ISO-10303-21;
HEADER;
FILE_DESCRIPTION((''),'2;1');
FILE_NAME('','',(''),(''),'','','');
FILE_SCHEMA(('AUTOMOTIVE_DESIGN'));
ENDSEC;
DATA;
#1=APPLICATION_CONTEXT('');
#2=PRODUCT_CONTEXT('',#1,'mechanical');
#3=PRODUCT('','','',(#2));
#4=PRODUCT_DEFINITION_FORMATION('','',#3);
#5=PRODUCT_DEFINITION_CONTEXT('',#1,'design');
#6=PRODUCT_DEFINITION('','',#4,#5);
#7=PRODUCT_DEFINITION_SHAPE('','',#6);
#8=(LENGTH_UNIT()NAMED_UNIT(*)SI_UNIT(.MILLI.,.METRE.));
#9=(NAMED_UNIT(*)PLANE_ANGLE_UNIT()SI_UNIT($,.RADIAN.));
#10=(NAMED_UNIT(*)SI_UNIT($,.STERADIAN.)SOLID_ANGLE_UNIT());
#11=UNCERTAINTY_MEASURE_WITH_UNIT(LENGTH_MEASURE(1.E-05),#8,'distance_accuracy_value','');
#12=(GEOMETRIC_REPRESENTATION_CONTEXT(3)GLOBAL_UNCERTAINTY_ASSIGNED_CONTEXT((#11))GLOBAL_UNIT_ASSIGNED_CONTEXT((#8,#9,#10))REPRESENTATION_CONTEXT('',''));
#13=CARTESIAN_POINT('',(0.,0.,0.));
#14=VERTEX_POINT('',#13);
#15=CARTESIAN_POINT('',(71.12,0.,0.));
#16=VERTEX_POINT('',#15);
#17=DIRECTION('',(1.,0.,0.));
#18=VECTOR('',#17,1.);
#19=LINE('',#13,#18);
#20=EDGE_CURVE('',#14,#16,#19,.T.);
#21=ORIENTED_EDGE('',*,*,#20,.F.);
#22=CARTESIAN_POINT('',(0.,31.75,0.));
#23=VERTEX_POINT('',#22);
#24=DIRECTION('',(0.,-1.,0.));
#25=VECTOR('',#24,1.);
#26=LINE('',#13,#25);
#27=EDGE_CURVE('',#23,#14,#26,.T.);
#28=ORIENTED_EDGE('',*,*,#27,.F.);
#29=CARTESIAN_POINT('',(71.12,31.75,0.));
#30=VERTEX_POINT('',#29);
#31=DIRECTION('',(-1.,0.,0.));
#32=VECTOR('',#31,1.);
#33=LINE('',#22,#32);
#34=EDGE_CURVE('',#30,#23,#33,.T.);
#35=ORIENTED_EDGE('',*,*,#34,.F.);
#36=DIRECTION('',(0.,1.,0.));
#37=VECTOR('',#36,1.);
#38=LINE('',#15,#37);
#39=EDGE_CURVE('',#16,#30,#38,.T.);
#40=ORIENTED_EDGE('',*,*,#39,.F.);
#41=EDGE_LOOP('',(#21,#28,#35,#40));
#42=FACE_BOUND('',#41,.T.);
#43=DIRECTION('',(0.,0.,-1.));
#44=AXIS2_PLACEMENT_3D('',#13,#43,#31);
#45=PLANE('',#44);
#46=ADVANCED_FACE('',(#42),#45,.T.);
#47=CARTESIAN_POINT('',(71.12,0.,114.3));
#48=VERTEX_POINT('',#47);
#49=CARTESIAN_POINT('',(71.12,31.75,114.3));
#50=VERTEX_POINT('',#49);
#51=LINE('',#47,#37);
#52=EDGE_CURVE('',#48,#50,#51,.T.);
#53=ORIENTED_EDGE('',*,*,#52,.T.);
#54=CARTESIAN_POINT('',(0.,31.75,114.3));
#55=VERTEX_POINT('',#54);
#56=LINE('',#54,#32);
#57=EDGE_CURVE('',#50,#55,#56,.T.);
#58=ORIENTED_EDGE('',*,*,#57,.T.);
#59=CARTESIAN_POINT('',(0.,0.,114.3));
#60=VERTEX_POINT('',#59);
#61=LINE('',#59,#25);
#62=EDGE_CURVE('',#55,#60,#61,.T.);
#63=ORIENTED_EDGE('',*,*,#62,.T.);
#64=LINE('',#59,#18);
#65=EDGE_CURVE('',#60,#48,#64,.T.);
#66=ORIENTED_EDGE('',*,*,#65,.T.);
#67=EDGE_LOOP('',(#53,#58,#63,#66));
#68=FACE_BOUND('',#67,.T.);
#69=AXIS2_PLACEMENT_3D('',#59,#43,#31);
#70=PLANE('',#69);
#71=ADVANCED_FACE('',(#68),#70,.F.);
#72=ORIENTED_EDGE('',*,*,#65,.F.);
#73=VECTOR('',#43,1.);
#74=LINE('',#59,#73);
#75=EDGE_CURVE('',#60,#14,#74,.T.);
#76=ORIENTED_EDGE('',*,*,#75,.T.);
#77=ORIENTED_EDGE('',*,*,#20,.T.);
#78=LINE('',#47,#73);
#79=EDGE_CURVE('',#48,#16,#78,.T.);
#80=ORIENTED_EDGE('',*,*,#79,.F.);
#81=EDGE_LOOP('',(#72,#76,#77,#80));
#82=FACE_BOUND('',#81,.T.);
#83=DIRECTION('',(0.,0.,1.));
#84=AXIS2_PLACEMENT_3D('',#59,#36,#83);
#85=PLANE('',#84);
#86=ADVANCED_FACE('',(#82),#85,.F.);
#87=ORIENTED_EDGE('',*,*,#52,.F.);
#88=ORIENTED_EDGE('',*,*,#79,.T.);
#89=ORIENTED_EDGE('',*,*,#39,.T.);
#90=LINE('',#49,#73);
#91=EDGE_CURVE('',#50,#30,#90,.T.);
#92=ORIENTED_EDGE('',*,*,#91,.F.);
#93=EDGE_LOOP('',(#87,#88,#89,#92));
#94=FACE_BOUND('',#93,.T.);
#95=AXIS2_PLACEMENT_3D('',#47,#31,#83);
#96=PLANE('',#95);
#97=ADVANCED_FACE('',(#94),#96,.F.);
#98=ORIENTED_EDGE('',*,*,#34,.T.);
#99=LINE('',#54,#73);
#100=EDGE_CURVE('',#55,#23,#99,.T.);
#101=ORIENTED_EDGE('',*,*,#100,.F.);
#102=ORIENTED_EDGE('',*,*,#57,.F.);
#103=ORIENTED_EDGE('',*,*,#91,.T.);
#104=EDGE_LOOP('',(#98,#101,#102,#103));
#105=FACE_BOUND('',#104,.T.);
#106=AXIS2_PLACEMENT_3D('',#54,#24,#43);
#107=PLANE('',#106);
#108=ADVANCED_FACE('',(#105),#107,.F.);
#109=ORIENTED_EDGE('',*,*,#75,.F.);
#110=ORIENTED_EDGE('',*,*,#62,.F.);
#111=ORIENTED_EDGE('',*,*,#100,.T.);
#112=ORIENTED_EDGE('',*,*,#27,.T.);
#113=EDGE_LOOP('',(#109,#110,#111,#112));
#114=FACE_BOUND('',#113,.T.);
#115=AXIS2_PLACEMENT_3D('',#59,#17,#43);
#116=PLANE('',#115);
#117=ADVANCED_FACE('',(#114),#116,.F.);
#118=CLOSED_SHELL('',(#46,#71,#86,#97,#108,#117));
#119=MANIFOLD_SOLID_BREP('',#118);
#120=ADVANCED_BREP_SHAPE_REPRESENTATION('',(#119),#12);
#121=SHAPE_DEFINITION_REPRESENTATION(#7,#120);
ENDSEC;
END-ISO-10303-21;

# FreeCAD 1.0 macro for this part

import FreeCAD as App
import Part
import Sketcher
Q = App.Units.Quantity

doc = App.newDocument("Part")
body = doc.addObject("PartDesign::Body", "Body")

# Sketch on XY plane
sketch1 = doc.addObject("Sketcher::SketchObject", "Sketch")
body.addObject(sketch1)
sketch1.AttachmentSupport = (doc.XY_Plane, [""])
sketch1.MapMode = "FlatFace"
sketch1.addGeometry([
    Part.LineSegment(App.Vector(0, 31.75, 0), App.Vector(0, 0, 0)),
    Part.LineSegment(App.Vector(0, 0, 0), App.Vector(71.12, 0, 0)),
    Part.LineSegment(App.Vector(71.12, 0, 0), App.Vector(71.12, 31.75, 0)),
    Part.LineSegment(App.Vector(71.12, 31.75, 0), App.Vector(0, 31.75, 0)),
], False)
sketch1.addConstraint([
    Sketcher.Constraint("Coincident", 0, 2, 1, 1),
    Sketcher.Constraint("Coincident", 1, 2, 2, 1),
    Sketcher.Constraint("Coincident", 2, 2, 3, 1),
    Sketcher.Constraint("Coincident", 3, 2, 0, 1),
    Sketcher.Constraint("Vertical", 0),
    Sketcher.Constraint("Horizontal", 1),
    Sketcher.Constraint("Vertical", 2),
    Sketcher.Constraint("Horizontal", 3),
    Sketcher.Constraint("Coincident", 0, 2, -1, 1),
    Sketcher.Constraint("DistanceX", 1, 1, 1, 2, Q("2.8 in")),
    Sketcher.Constraint("DistanceY", 0, 2, 0, 1, Q("1.25 in")),
])
pad1 = doc.addObject("PartDesign::Pad", "Pad")
body.addObject(pad1)
pad1.Profile = sketch1
pad1.Length = Q("4.5 in")

doc.recompute()
